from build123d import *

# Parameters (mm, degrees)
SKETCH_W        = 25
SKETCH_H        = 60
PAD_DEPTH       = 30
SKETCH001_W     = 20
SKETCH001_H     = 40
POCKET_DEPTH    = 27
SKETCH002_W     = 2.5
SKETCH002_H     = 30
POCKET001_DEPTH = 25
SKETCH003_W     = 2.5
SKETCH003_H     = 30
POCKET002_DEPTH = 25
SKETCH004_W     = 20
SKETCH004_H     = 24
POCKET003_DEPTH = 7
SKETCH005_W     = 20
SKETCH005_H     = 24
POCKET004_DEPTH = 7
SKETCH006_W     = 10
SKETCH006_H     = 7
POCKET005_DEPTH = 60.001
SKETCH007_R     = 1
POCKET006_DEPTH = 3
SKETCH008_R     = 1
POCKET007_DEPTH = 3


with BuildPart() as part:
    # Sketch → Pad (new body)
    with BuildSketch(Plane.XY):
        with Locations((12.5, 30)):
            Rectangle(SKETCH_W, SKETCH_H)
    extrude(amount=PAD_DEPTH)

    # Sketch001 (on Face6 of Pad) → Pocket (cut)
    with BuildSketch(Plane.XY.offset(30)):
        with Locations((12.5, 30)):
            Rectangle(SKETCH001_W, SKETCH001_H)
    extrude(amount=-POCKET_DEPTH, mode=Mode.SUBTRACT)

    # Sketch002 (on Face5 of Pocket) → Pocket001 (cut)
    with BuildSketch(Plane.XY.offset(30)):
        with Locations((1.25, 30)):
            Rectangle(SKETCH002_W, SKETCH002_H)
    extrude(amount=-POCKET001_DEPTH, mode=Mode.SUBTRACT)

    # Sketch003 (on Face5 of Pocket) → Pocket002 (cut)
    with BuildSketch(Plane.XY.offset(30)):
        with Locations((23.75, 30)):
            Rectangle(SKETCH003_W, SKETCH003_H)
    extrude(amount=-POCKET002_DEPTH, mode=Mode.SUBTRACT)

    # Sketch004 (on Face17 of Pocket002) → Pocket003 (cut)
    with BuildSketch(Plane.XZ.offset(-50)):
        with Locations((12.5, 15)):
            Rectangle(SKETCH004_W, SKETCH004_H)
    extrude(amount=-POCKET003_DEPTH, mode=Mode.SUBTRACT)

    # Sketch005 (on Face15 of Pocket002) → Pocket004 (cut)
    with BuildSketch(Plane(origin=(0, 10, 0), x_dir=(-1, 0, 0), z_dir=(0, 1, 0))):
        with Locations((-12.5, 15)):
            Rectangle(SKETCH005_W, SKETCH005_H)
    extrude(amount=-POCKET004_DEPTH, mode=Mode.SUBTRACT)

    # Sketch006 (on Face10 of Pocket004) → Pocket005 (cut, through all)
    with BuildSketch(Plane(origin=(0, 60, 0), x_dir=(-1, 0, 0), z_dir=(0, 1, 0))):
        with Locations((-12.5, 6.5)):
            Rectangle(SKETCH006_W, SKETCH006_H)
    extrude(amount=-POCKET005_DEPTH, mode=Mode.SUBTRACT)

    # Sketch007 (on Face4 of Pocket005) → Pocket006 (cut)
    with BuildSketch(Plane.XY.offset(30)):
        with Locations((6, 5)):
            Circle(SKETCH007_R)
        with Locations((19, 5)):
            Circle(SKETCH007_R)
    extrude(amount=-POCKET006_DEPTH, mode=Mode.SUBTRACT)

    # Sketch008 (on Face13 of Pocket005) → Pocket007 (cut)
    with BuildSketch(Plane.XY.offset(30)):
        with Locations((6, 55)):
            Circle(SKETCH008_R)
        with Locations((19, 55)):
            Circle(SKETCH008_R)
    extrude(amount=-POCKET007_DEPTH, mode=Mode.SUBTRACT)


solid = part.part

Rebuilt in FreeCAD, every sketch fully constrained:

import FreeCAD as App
import Part
import Sketcher

V = App.Vector
Q = App.Units.Quantity


def add_polygon(sketch, points):
    """Adds a closed chain of lines whose ends are joined by coincident constraints."""
    first, n = sketch.GeometryCount, len(points)
    for a, b in zip(points, points[1:] + points[:1]):
        sketch.addGeometry(Part.LineSegment(App.Vector(*a, 0), App.Vector(*b, 0)), False)
    for i in range(n):
        sketch.addConstraint(Sketcher.Constraint("Coincident", first + i, 2, first + (i + 1) % n, 1))

doc = App.newDocument("Part")
body = doc.addObject("PartDesign::Body", "Body")

# Sketch on XY plane
sketch1 = body.newObject("Sketcher::SketchObject", "Sketch")
sketch1.AttachmentSupport = (doc.getObject("XY_Plane"), [""])
sketch1.MapMode = "FlatFace"
add_polygon(sketch1, [(0, 60), (0, 0), (25, 0), (25, 60)])  # lines 0-3
sketch1.addConstraint(Sketcher.Constraint("Vertical", 0))
sketch1.addConstraint(Sketcher.Constraint("Horizontal", 1))
sketch1.addConstraint(Sketcher.Constraint("Vertical", 2))
sketch1.addConstraint(Sketcher.Constraint("Horizontal", 3))
sketch1.addConstraint(Sketcher.Constraint("Coincident", 0, 2, -1, 1))
sketch1.addConstraint(Sketcher.Constraint("DistanceX", 1, 1, 1, 2, Q("25 mm")))
sketch1.addConstraint(Sketcher.Constraint("DistanceY", 0, 2, 0, 1, Q("60 mm")))
pad1 = body.newObject("PartDesign::Pad", "Pad")
pad1.Profile = sketch1
pad1.Length = 30

# Sketch on XY plane
sketch2 = body.newObject("Sketcher::SketchObject", "Sketch001")
sketch2.AttachmentSupport = (doc.getObject("XY_Plane"), [""])
sketch2.MapMode = "FlatFace"
sketch2.AttachmentOffset = App.Placement(V(0, 0, 30), App.Rotation())
add_polygon(sketch2, [(2.5, 50), (2.5, 10), (22.5, 10), (22.5, 50)])  # lines 0-3
sketch2.addConstraint(Sketcher.Constraint("Vertical", 0))
sketch2.addConstraint(Sketcher.Constraint("Horizontal", 1))
sketch2.addConstraint(Sketcher.Constraint("Vertical", 2))
sketch2.addConstraint(Sketcher.Constraint("Horizontal", 3))
sketch2.addConstraint(Sketcher.Constraint("DistanceX", 1, 1, 1, 2, Q("20 mm")))
sketch2.addConstraint(Sketcher.Constraint("DistanceY", 0, 2, 0, 1, Q("40 mm")))
sketch2.addConstraint(Sketcher.Constraint("DistanceY", -1, 1, 0, 2, Q("10 mm")))
sketch2.addConstraint(Sketcher.Constraint("DistanceX", -1, 1, 0, 2, Q("2.5 mm")))
pocket1 = body.newObject("PartDesign::Pocket", "Pocket")
pocket1.Profile = sketch2
pocket1.Length = 27

# Sketch on XY plane
sketch3 = body.newObject("Sketcher::SketchObject", "Sketch002")
sketch3.AttachmentSupport = (doc.getObject("XY_Plane"), [""])
sketch3.MapMode = "FlatFace"
sketch3.AttachmentOffset = App.Placement(V(0, 0, 30), App.Rotation())
add_polygon(sketch3, [(0, 45), (0, 15), (2.5, 15), (2.5, 45)])  # lines 0-3
sketch3.addConstraint(Sketcher.Constraint("Vertical", 0))
sketch3.addConstraint(Sketcher.Constraint("Horizontal", 1))
sketch3.addConstraint(Sketcher.Constraint("Vertical", 2))
sketch3.addConstraint(Sketcher.Constraint("Horizontal", 3))
sketch3.addConstraint(Sketcher.Constraint("PointOnObject", 0, 2, -2))
sketch3.addConstraint(Sketcher.Constraint("DistanceY", 0, 2, 0, 1, Q("30 mm")))
sketch3.addConstraint(Sketcher.Constraint("DistanceX", 1, 1, 1, 2, Q("2.5 mm")))
sketch3.addConstraint(Sketcher.Constraint("DistanceY", -1, 1, 0, 2, Q("15 mm")))
pocket2 = body.newObject("PartDesign::Pocket", "Pocket001")
pocket2.Profile = sketch3
pocket2.Length = 25

# Sketch on XY plane
sketch4 = body.newObject("Sketcher::SketchObject", "Sketch003")
sketch4.AttachmentSupport = (doc.getObject("XY_Plane"), [""])
sketch4.MapMode = "FlatFace"
sketch4.AttachmentOffset = App.Placement(V(0, 0, 30), App.Rotation())
add_polygon(sketch4, [(22.5, 45), (22.5, 15), (25, 15), (25, 45)])  # lines 0-3
sketch4.addConstraint(Sketcher.Constraint("Vertical", 0))
sketch4.addConstraint(Sketcher.Constraint("Horizontal", 1))
sketch4.addConstraint(Sketcher.Constraint("Vertical", 2))
sketch4.addConstraint(Sketcher.Constraint("Horizontal", 3))
sketch4.addConstraint(Sketcher.Constraint("DistanceY", 0, 2, 0, 1, Q("30 mm")))
sketch4.addConstraint(Sketcher.Constraint("DistanceX", 1, 1, 1, 2, Q("2.5 mm")))
sketch4.addConstraint(Sketcher.Constraint("DistanceY", -1, 1, 0, 2, Q("15 mm")))
sketch4.addConstraint(Sketcher.Constraint("DistanceX", -1, 1, 1, 2, Q("25 mm")))
pocket3 = body.newObject("PartDesign::Pocket", "Pocket002")
pocket3.Profile = sketch4
pocket3.Length = 25

# Sketch on XZ plane
sketch5 = body.newObject("Sketcher::SketchObject", "Sketch004")
sketch5.AttachmentSupport = (doc.getObject("XZ_Plane"), [""])
sketch5.MapMode = "FlatFace"
sketch5.AttachmentOffset = App.Placement(V(0, 0, -50), App.Rotation())
add_polygon(sketch5, [(2.5, 27), (2.5, 3), (22.5, 3), (22.5, 27)])  # lines 0-3
sketch5.addConstraint(Sketcher.Constraint("Vertical", 0))
sketch5.addConstraint(Sketcher.Constraint("Horizontal", 1))
sketch5.addConstraint(Sketcher.Constraint("Vertical", 2))
sketch5.addConstraint(Sketcher.Constraint("Horizontal", 3))
sketch5.addConstraint(Sketcher.Constraint("DistanceX", 1, 1, 1, 2, Q("20 mm")))
sketch5.addConstraint(Sketcher.Constraint("DistanceY", 0, 2, 0, 1, Q("24 mm")))
sketch5.addConstraint(Sketcher.Constraint("DistanceY", -1, 1, 0, 2, Q("3 mm")))
sketch5.addConstraint(Sketcher.Constraint("DistanceX", -1, 1, 0, 2, Q("2.5 mm")))
pocket4 = body.newObject("PartDesign::Pocket", "Pocket003")
pocket4.Profile = sketch5
pocket4.Length = 7

# Sketch on XZ plane
sketch6 = body.newObject("Sketcher::SketchObject", "Sketch005")
sketch6.AttachmentSupport = (doc.getObject("XZ_Plane"), [""])
sketch6.MapMode = "FlatFace"
sketch6.AttachmentOffset = App.Placement(V(0, 0, -10), App.Rotation())
add_polygon(sketch6, [(22.5, 27), (22.5, 3), (2.5, 3), (2.5, 27)])  # lines 0-3
sketch6.addConstraint(Sketcher.Constraint("Vertical", 0))
sketch6.addConstraint(Sketcher.Constraint("Horizontal", 1))
sketch6.addConstraint(Sketcher.Constraint("Vertical", 2))
sketch6.addConstraint(Sketcher.Constraint("Horizontal", 3))
sketch6.addConstraint(Sketcher.Constraint("DistanceX", 1, 2, 1, 1, Q("20 mm")))
sketch6.addConstraint(Sketcher.Constraint("DistanceY", 0, 2, 0, 1, Q("24 mm")))
sketch6.addConstraint(Sketcher.Constraint("DistanceY", -1, 1, 0, 2, Q("3 mm")))
sketch6.addConstraint(Sketcher.Constraint("DistanceX", -1, 1, 0, 2, Q("22.5 mm")))
pocket5 = body.newObject("PartDesign::Pocket", "Pocket004")
pocket5.Profile = sketch6
pocket5.Length = 7
pocket5.Reversed = True

# Sketch on XZ plane
sketch7 = body.newObject("Sketcher::SketchObject", "Sketch006")
sketch7.AttachmentSupport = (doc.getObject("XZ_Plane"), [""])
sketch7.MapMode = "FlatFace"
sketch7.AttachmentOffset = App.Placement(V(0, 0, -60), App.Rotation())
add_polygon(sketch7, [(17.5, 10), (17.5, 3), (7.5, 3), (7.5, 10)])  # lines 0-3
sketch7.addConstraint(Sketcher.Constraint("Vertical", 0))
sketch7.addConstraint(Sketcher.Constraint("Horizontal", 1))
sketch7.addConstraint(Sketcher.Constraint("Vertical", 2))
sketch7.addConstraint(Sketcher.Constraint("Horizontal", 3))
sketch7.addConstraint(Sketcher.Constraint("DistanceX", 1, 2, 1, 1, Q("10 mm")))
sketch7.addConstraint(Sketcher.Constraint("DistanceY", 0, 2, 0, 1, Q("7 mm")))
sketch7.addConstraint(Sketcher.Constraint("DistanceY", -1, 1, 0, 2, Q("3 mm")))
sketch7.addConstraint(Sketcher.Constraint("DistanceX", -1, 1, 0, 2, Q("17.5 mm")))
pocket6 = body.newObject("PartDesign::Pocket", "Pocket005")
pocket6.Profile = sketch7
pocket6.Type = "ThroughAll"
pocket6.Reversed = True

# Sketch on XY plane
sketch8 = body.newObject("Sketcher::SketchObject", "Sketch007")
sketch8.AttachmentSupport = (doc.getObject("XY_Plane"), [""])
sketch8.MapMode = "FlatFace"
sketch8.AttachmentOffset = App.Placement(V(0, 0, 30), App.Rotation())
sketch8.addGeometry(Part.Circle(V(6, 5, 0), V(0, 0, 1), 1), False)
sketch8.addGeometry(Part.Circle(V(19, 5, 0), V(0, 0, 1), 1), False)
sketch8.addConstraint(Sketcher.Constraint("Equal", 0, 1))
sketch8.addConstraint(Sketcher.Constraint("Horizontal", 0, 3, 1, 3))
sketch8.addConstraint(Sketcher.Constraint("Diameter", 0, Q("2 mm")))
sketch8.addConstraint(Sketcher.Constraint("DistanceX", -1, 1, 0, 3, Q("6 mm")))
sketch8.addConstraint(Sketcher.Constraint("DistanceY", -1, 1, 0, 3, Q("5 mm")))
sketch8.addConstraint(Sketcher.Constraint("DistanceX", -1, 1, 1, 3, Q("19 mm")))
pocket7 = body.newObject("PartDesign::Pocket", "Pocket006")
pocket7.Profile = sketch8
pocket7.Length = 3

# Sketch on XY plane
sketch9 = body.newObject("Sketcher::SketchObject", "Sketch008")
sketch9.AttachmentSupport = (doc.getObject("XY_Plane"), [""])
sketch9.MapMode = "FlatFace"
sketch9.AttachmentOffset = App.Placement(V(0, 0, 30), App.Rotation())
sketch9.addGeometry(Part.Circle(V(6, 55, 0), V(0, 0, 1), 1), False)
sketch9.addGeometry(Part.Circle(V(19, 55, 0), V(0, 0, 1), 1), False)
sketch9.addConstraint(Sketcher.Constraint("Equal", 0, 1))
sketch9.addConstraint(Sketcher.Constraint("Horizontal", 0, 3, 1, 3))
sketch9.addConstraint(Sketcher.Constraint("Diameter", 0, Q("2 mm")))
sketch9.addConstraint(Sketcher.Constraint("DistanceX", -1, 1, 0, 3, Q("6 mm")))
sketch9.addConstraint(Sketcher.Constraint("DistanceY", -1, 1, 0, 3, Q("55 mm")))
sketch9.addConstraint(Sketcher.Constraint("DistanceX", -1, 1, 1, 3, Q("19 mm")))
pocket8 = body.newObject("PartDesign::Pocket", "Pocket007")
pocket8.Profile = sketch9
pocket8.Length = 3

doc.recompute()
